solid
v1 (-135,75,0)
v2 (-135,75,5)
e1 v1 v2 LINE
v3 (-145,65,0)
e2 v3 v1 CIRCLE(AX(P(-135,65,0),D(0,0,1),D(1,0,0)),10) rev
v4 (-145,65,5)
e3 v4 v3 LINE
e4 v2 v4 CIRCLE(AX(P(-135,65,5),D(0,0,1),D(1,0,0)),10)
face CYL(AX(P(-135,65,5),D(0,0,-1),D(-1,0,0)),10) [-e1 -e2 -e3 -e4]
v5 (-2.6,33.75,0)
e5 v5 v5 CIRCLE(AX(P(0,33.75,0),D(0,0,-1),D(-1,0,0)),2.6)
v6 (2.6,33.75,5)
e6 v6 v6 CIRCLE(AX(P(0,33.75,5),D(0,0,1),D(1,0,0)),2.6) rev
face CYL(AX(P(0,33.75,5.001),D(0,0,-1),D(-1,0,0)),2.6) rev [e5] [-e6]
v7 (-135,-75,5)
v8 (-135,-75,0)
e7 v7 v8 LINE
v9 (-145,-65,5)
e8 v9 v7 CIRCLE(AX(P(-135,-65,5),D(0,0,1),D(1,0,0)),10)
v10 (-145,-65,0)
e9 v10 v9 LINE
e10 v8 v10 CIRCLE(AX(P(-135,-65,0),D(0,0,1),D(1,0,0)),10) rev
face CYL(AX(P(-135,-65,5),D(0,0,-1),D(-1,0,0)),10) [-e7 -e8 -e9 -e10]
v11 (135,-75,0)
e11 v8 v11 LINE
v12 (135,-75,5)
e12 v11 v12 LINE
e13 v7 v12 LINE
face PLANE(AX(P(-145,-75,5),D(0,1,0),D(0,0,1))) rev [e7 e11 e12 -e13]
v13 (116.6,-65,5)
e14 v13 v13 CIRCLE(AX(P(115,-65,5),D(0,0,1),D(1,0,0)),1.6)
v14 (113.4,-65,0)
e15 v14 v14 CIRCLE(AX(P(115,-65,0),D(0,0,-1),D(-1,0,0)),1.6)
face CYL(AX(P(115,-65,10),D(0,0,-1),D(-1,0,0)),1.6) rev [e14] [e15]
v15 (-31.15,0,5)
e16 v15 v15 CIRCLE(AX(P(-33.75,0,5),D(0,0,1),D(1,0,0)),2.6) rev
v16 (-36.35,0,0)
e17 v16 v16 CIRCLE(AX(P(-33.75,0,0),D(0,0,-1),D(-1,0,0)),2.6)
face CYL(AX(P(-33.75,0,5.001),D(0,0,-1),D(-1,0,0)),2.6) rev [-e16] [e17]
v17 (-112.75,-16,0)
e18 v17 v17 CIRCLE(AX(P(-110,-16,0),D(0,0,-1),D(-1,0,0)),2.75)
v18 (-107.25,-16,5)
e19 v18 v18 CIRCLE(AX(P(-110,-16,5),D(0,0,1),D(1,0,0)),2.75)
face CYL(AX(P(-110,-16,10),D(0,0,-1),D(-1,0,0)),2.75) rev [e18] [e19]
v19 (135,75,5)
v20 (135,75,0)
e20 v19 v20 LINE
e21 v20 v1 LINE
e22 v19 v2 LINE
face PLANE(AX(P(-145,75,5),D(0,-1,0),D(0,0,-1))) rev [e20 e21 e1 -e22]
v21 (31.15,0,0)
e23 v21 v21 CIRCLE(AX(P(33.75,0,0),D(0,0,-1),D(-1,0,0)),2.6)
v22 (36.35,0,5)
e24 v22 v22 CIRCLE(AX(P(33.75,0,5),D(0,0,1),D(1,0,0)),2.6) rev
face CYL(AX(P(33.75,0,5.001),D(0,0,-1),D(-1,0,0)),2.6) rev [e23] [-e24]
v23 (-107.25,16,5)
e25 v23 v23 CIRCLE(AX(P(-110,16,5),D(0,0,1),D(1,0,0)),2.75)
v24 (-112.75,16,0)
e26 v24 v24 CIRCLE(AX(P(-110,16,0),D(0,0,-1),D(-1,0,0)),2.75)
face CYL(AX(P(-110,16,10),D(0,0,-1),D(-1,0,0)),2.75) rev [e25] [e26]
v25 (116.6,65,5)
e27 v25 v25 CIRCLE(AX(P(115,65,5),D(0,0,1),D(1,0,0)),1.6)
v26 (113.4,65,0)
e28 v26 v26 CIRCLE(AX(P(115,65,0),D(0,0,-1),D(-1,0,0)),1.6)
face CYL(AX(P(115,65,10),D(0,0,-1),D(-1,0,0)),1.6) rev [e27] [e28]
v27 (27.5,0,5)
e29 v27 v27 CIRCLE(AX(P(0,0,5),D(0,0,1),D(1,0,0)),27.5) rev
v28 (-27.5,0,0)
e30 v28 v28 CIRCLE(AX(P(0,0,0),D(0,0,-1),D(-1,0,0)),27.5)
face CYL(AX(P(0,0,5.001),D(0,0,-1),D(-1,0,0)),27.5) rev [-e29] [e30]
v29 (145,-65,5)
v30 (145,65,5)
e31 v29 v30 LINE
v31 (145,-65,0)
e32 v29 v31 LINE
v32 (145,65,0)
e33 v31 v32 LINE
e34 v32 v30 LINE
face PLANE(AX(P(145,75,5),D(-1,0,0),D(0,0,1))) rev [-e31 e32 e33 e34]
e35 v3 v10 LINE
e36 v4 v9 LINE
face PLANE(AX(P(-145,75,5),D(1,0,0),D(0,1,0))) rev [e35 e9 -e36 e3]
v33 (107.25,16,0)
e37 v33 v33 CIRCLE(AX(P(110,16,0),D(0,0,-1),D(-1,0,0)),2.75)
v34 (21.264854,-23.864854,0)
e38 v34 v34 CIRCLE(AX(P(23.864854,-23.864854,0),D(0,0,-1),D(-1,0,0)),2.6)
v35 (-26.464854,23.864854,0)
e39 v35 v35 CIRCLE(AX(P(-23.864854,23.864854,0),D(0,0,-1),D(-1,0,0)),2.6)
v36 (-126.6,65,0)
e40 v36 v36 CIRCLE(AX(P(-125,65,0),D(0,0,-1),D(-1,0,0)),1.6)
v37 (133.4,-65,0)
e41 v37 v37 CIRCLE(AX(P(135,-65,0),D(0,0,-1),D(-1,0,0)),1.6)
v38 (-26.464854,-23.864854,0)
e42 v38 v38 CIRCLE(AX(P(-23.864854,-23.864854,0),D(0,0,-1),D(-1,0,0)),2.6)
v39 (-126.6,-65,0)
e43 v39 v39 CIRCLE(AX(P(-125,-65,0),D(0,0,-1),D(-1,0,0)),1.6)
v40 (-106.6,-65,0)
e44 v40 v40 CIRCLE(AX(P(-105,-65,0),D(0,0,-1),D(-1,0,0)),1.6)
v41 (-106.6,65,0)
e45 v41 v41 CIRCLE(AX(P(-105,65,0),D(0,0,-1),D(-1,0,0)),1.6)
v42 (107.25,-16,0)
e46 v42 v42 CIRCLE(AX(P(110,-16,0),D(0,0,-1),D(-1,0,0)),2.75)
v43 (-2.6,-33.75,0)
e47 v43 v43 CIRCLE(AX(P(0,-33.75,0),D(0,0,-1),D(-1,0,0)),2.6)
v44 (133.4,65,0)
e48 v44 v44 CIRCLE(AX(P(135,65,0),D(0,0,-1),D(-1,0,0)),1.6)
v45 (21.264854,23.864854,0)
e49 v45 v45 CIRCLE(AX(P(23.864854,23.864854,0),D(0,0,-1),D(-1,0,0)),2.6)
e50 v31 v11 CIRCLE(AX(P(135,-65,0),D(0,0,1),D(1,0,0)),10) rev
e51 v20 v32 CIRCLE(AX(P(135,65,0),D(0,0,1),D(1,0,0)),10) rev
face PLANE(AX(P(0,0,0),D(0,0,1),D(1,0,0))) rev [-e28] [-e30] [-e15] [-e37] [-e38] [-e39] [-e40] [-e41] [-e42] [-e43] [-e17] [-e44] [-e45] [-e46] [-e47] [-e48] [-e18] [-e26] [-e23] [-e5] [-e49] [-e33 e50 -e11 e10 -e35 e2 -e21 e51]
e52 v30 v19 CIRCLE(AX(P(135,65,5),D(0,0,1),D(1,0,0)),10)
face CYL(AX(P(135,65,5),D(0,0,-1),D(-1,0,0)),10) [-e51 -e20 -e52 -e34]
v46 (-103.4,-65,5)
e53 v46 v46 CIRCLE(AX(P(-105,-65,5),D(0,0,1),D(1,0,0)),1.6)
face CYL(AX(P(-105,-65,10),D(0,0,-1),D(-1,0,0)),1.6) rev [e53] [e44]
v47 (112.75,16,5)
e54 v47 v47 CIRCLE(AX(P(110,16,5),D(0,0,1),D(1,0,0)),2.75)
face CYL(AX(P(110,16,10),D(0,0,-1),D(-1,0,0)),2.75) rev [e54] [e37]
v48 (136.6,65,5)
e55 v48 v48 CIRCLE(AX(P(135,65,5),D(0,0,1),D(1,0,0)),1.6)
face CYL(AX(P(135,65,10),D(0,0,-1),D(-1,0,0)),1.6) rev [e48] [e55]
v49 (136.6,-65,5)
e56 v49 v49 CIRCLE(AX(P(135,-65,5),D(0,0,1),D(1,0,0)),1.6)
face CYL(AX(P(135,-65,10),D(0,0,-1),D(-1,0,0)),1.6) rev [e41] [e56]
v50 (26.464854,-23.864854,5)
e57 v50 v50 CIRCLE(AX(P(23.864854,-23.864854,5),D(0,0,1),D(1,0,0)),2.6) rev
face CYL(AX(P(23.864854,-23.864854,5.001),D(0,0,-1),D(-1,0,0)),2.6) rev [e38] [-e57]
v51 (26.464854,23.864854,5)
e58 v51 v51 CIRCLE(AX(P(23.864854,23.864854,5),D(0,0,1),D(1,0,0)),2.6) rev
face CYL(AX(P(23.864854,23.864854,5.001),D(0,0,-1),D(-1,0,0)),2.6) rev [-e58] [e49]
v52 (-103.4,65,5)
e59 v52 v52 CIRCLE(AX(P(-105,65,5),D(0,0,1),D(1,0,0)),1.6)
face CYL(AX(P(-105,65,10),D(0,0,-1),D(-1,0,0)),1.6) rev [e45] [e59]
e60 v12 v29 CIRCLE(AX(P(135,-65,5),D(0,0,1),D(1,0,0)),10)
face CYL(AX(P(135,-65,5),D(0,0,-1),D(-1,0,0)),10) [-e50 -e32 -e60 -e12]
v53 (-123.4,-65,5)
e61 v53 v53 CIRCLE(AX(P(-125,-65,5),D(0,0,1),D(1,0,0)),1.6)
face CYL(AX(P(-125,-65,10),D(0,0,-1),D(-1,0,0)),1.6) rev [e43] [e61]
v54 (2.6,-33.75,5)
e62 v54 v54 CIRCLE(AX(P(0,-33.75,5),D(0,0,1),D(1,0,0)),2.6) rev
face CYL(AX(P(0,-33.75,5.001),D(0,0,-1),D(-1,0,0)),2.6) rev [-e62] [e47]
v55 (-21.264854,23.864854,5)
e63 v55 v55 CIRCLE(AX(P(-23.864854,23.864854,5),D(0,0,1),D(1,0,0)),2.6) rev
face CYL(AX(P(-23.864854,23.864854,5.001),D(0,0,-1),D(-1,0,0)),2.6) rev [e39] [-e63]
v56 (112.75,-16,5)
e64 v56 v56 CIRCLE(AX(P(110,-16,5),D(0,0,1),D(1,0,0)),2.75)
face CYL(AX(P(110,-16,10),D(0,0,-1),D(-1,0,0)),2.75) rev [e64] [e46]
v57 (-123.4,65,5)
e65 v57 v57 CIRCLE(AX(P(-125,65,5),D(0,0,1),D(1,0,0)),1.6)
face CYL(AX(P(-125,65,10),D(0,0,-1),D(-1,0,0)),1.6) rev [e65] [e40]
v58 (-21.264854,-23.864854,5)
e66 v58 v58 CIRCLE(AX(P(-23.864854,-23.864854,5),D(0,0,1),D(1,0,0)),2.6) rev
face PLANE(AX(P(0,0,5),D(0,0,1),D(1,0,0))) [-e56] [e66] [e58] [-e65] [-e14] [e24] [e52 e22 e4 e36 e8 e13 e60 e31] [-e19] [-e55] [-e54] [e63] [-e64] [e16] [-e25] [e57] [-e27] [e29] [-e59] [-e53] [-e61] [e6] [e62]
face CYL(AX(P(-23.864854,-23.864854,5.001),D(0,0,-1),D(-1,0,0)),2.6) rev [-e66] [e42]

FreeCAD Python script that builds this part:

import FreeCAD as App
import Part
import Sketcher

V = App.Vector
Q = App.Units.Quantity


def edges_at(feature, points):
    """Names of the edges that pass closest to the given points."""
    edges = feature.Shape.Edges
    near = lambda p: min(range(len(edges)), key=lambda i: edges[i].distToShape(Part.Vertex(*p))[0])
    return sorted({f"Edge{near(p) + 1}" for p in points})


def add_polygon(sketch, points):
    """Adds a closed chain of lines whose ends are joined by coincident constraints."""
    first, n = sketch.GeometryCount, len(points)
    for a, b in zip(points, points[1:] + points[:1]):
        sketch.addGeometry(Part.LineSegment(App.Vector(*a, 0), App.Vector(*b, 0)), False)
    for i in range(n):
        sketch.addConstraint(Sketcher.Constraint("Coincident", first + i, 2, first + (i + 1) % n, 1))

doc = App.newDocument("Part")
body = doc.addObject("PartDesign::Body", "Body")

sketch1 = body.newObject("Sketcher::SketchObject", "Sketch")
sketch1.AttachmentSupport = (doc.getObject("XY_Plane"), [""])
sketch1.MapMode = "FlatFace"
add_polygon(sketch1, [(-145, 75), (-145, -75), (145, -75), (145, 75)])
sketch1.addConstraint([
    Sketcher.Constraint("Vertical", 0),
    Sketcher.Constraint("Horizontal", 1),
    Sketcher.Constraint("Vertical", 2),
    Sketcher.Constraint("Horizontal", 3),
    Sketcher.Constraint("Symmetric", 0, 2, 2, 2, -1, 1),
    Sketcher.Constraint("DistanceX", 1, 1, 1, 2, Q("290 mm")),
    Sketcher.Constraint("DistanceY", 0, 2, 0, 1, Q("150 mm")),
])
pad1 = body.newObject("PartDesign::Pad", "Pad")
pad1.Profile = sketch1
pad1.Length = 5

sketch2 = body.newObject("Sketcher::SketchObject", "Sketch001")
sketch2.AttachmentSupport = (doc.getObject("XY_Plane"), [""])
sketch2.MapMode = "FlatFace"
sketch2.addGeometry(Part.Circle(V(0, 0, 0), V(0, 0, 1), 27.5), False)
sketch2.addConstraint([
    Sketcher.Constraint("Coincident", 0, 3, -1, 1),
    Sketcher.Constraint("Diameter", 0, Q("55 mm")),
])
pocket1 = body.newObject("PartDesign::Pocket", "Pocket")
pocket1.Profile = sketch2
pocket1.Type = "UpToFirst"
pocket1.Reversed = True

sketch3 = body.newObject("Sketcher::SketchObject", "Sketch002")
sketch3.AttachmentSupport = (doc.getObject("XY_Plane"), [""])
sketch3.MapMode = "FlatFace"
sketch3.addGeometry(Part.Circle(V(-23.864854, 23.864854, 0), V(0, 0, 1), 2.6), False)
sketch3.addConstraint([
    Sketcher.Constraint("Diameter", 0, Q("5.2 mm")),
    Sketcher.Constraint("DistanceX", 0, 3, -1, 1, Q("23.864854 mm")),
    Sketcher.Constraint("DistanceY", -1, 1, 0, 3, Q("23.864854 mm")),
])
pocket2 = body.newObject("PartDesign::Pocket", "Pocket001")
pocket2.Profile = sketch3
pocket2.Type = "UpToFirst"
pocket2.Reversed = True

sketch4 = body.newObject("Sketcher::SketchObject", "Sketch003")
sketch4.AttachmentSupport = (doc.getObject("XY_Plane"), [""])
sketch4.MapMode = "FlatFace"
sketch4.addGeometry(Part.Circle(V(0, 33.75, 0), V(0, 0, 1), 2.6), False)
sketch4.addConstraint([
    Sketcher.Constraint("PointOnObject", 0, 3, -2),
    Sketcher.Constraint("Diameter", 0, Q("5.2 mm")),
    Sketcher.Constraint("DistanceY", -1, 1, 0, 3, Q("33.75 mm")),
])
pocket3 = body.newObject("PartDesign::Pocket", "Pocket002")
pocket3.Profile = sketch4
pocket3.Type = "UpToFirst"
pocket3.Reversed = True

sketch5 = body.newObject("Sketcher::SketchObject", "Sketch004")
sketch5.AttachmentSupport = (doc.getObject("XY_Plane"), [""])
sketch5.MapMode = "FlatFace"
sketch5.addGeometry(Part.Circle(V(23.864854, 23.864854, 0), V(0, 0, 1), 2.6), False)
sketch5.addConstraint([
    Sketcher.Constraint("Diameter", 0, Q("5.2 mm")),
    Sketcher.Constraint("DistanceX", -1, 1, 0, 3, Q("23.864854 mm")),
    Sketcher.Constraint("DistanceY", -1, 1, 0, 3, Q("23.864854 mm")),
])
pocket4 = body.newObject("PartDesign::Pocket", "Pocket003")
pocket4.Profile = sketch5
pocket4.Type = "UpToFirst"
pocket4.Reversed = True

sketch6 = body.newObject("Sketcher::SketchObject", "Sketch005")
sketch6.AttachmentSupport = (doc.getObject("XY_Plane"), [""])
sketch6.MapMode = "FlatFace"
sketch6.addGeometry(Part.Circle(V(33.75, 0, 0), V(0, 0, 1), 2.6), False)
sketch6.addConstraint([
    Sketcher.Constraint("PointOnObject", 0, 3, -1),
    Sketcher.Constraint("Diameter", 0, Q("5.2 mm")),
    Sketcher.Constraint("DistanceX", -1, 1, 0, 3, Q("33.75 mm")),
])
pocket5 = body.newObject("PartDesign::Pocket", "Pocket004")
pocket5.Profile = sketch6
pocket5.Type = "UpToFirst"
pocket5.Reversed = True

sketch7 = body.newObject("Sketcher::SketchObject", "Sketch006")
sketch7.AttachmentSupport = (doc.getObject("XY_Plane"), [""])
sketch7.MapMode = "FlatFace"
sketch7.addGeometry(Part.Circle(V(23.864854, -23.864854, 0), V(0, 0, 1), 2.6), False)
sketch7.addConstraint([
    Sketcher.Constraint("Diameter", 0, Q("5.2 mm")),
    Sketcher.Constraint("DistanceX", -1, 1, 0, 3, Q("23.864854 mm")),
    Sketcher.Constraint("DistanceY", 0, 3, -1, 1, Q("23.864854 mm")),
])
pocket6 = body.newObject("PartDesign::Pocket", "Pocket005")
pocket6.Profile = sketch7
pocket6.Type = "UpToFirst"
pocket6.Reversed = True

sketch8 = body.newObject("Sketcher::SketchObject", "Sketch007")
sketch8.AttachmentSupport = (doc.getObject("XY_Plane"), [""])
sketch8.MapMode = "FlatFace"
sketch8.addGeometry(Part.Circle(V(0, -33.75, 0), V(0, 0, 1), 2.6), False)
sketch8.addConstraint([
    Sketcher.Constraint("PointOnObject", 0, 3, -2),
    Sketcher.Constraint("Diameter", 0, Q("5.2 mm")),
    Sketcher.Constraint("DistanceY", 0, 3, -1, 1, Q("33.75 mm")),
])
pocket7 = body.newObject("PartDesign::Pocket", "Pocket006")
pocket7.Profile = sketch8
pocket7.Type = "UpToFirst"
pocket7.Reversed = True

sketch9 = body.newObject("Sketcher::SketchObject", "Sketch008")
sketch9.AttachmentSupport = (doc.getObject("XY_Plane"), [""])
sketch9.MapMode = "FlatFace"
sketch9.addGeometry(Part.Circle(V(-23.864854, -23.864854, 0), V(0, 0, 1), 2.6), False)
sketch9.addConstraint([
    Sketcher.Constraint("Diameter", 0, Q("5.2 mm")),
    Sketcher.Constraint("DistanceX", 0, 3, -1, 1, Q("23.864854 mm")),
    Sketcher.Constraint("DistanceY", 0, 3, -1, 1, Q("23.864854 mm")),
])
pocket8 = body.newObject("PartDesign::Pocket", "Pocket007")
pocket8.Profile = sketch9
pocket8.Type = "UpToFirst"
pocket8.Reversed = True

sketch10 = body.newObject("Sketcher::SketchObject", "Sketch009")
sketch10.AttachmentSupport = (doc.getObject("XY_Plane"), [""])
sketch10.MapMode = "FlatFace"
sketch10.addGeometry(Part.Circle(V(-33.75, 0, 0), V(0, 0, 1), 2.6), False)
sketch10.addConstraint([
    Sketcher.Constraint("PointOnObject", 0, 3, -1),
    Sketcher.Constraint("Diameter", 0, Q("5.2 mm")),
    Sketcher.Constraint("DistanceX", 0, 3, -1, 1, Q("33.75 mm")),
])
pocket9 = body.newObject("PartDesign::Pocket", "Pocket008")
pocket9.Profile = sketch10
pocket9.Type = "UpToFirst"
pocket9.Reversed = True
doc.recompute()

fillet = body.newObject("PartDesign::Fillet", "Fillet")
fillet.Base = (pocket9, edges_at(pocket9, [
    (145, -75, 2.5),
    (-145, -75, 2.5),
    (-145, 75, 2.5),
    (145, 75, 2.5),
]))
fillet.Radius = 10

sketch11 = body.newObject("Sketcher::SketchObject", "Sketch010")
sketch11.AttachmentSupport = (doc.getObject("XY_Plane"), [""])
sketch11.MapMode = "FlatFace"
sketch11.addGeometry([
    Part.Circle(V(-110, -16, 0), V(0, 0, 1), 2.75),
    Part.Circle(V(110, -16, 0), V(0, 0, 1), 2.75),
    Part.Circle(V(110, 16, 0), V(0, 0, 1), 2.75),
    Part.Circle(V(-110, 16, 0), V(0, 0, 1), 2.75),
], False)
sketch11.addConstraint([
    Sketcher.Constraint("Equal", 0, 1),
    Sketcher.Constraint("Equal", 1, 2),
    Sketcher.Constraint("Equal", 2, 3),
    Sketcher.Constraint("Symmetric", 0, 3, 2, 3, -1, 1),
    Sketcher.Constraint("Symmetric", 1, 3, 3, 3, -1, 1),
    Sketcher.Constraint("Symmetric", 0, 3, 1, 3, -2),
    Sketcher.Constraint("Diameter", 0, Q("5.5 mm")),
    Sketcher.Constraint("DistanceX", 0, 3, -1, 1, Q("110 mm")),
    Sketcher.Constraint("DistanceY", 0, 3, -1, 1, Q("16 mm")),
])
pocket10 = body.newObject("PartDesign::Pocket", "Pocket009")
pocket10.Profile = sketch11
pocket10.Length = 10
pocket10.Reversed = True

sketch12 = body.newObject("Sketcher::SketchObject", "Sketch011")
sketch12.AttachmentSupport = (doc.getObject("XY_Plane"), [""])
sketch12.MapMode = "FlatFace"
sketch12.addGeometry([
    Part.Circle(V(135, 65, 0), V(0, 0, 1), 1.6),
    Part.Circle(V(115, 65, 0), V(0, 0, 1), 1.6),
    Part.Circle(V(-105, 65, 0), V(0, 0, 1), 1.6),
    Part.Circle(V(-125, 65, 0), V(0, 0, 1), 1.6),
    Part.Circle(V(-105, -65, 0), V(0, 0, 1), 1.6),
    Part.Circle(V(-125, -65, 0), V(0, 0, 1), 1.6),
    Part.Circle(V(135, -65, 0), V(0, 0, 1), 1.6),
    Part.Circle(V(115, -65, 0), V(0, 0, 1), 1.6),
], False)
sketch12.addConstraint([
    Sketcher.Constraint("Equal", 0, 1),
    Sketcher.Constraint("Equal", 1, 2),
    Sketcher.Constraint("Equal", 2, 3),
    Sketcher.Constraint("Equal", 3, 4),
    Sketcher.Constraint("Equal", 4, 5),
    Sketcher.Constraint("Equal", 5, 6),
    Sketcher.Constraint("Equal", 6, 7),
    Sketcher.Constraint("Symmetric", 2, 3, 4, 3, -1),
    Sketcher.Constraint("Symmetric", 3, 3, 5, 3, -1),
    Sketcher.Constraint("Symmetric", 0, 3, 6, 3, -1),
    Sketcher.Constraint("Symmetric", 1, 3, 7, 3, -1),
    Sketcher.Constraint("Horizontal", 0, 3, 1, 3),
    Sketcher.Constraint("Horizontal", 1, 3, 2, 3),
    Sketcher.Constraint("Horizontal", 2, 3, 3, 3),
    Sketcher.Constraint("Diameter", 0, Q("3.2 mm")),
    Sketcher.Constraint("DistanceX", -1, 1, 0, 3, Q("135 mm")),
    Sketcher.Constraint("DistanceY", -1, 1, 0, 3, Q("65 mm")),
    Sketcher.Constraint("DistanceX", -1, 1, 1, 3, Q("115 mm")),
    Sketcher.Constraint("DistanceX", 2, 3, -1, 1, Q("105 mm")),
    Sketcher.Constraint("DistanceX", 3, 3, -1, 1, Q("125 mm")),
])
pocket11 = body.newObject("PartDesign::Pocket", "Pocket010")
pocket11.Profile = sketch12
pocket11.Length = 10
pocket11.Reversed = True

doc.recompute()
